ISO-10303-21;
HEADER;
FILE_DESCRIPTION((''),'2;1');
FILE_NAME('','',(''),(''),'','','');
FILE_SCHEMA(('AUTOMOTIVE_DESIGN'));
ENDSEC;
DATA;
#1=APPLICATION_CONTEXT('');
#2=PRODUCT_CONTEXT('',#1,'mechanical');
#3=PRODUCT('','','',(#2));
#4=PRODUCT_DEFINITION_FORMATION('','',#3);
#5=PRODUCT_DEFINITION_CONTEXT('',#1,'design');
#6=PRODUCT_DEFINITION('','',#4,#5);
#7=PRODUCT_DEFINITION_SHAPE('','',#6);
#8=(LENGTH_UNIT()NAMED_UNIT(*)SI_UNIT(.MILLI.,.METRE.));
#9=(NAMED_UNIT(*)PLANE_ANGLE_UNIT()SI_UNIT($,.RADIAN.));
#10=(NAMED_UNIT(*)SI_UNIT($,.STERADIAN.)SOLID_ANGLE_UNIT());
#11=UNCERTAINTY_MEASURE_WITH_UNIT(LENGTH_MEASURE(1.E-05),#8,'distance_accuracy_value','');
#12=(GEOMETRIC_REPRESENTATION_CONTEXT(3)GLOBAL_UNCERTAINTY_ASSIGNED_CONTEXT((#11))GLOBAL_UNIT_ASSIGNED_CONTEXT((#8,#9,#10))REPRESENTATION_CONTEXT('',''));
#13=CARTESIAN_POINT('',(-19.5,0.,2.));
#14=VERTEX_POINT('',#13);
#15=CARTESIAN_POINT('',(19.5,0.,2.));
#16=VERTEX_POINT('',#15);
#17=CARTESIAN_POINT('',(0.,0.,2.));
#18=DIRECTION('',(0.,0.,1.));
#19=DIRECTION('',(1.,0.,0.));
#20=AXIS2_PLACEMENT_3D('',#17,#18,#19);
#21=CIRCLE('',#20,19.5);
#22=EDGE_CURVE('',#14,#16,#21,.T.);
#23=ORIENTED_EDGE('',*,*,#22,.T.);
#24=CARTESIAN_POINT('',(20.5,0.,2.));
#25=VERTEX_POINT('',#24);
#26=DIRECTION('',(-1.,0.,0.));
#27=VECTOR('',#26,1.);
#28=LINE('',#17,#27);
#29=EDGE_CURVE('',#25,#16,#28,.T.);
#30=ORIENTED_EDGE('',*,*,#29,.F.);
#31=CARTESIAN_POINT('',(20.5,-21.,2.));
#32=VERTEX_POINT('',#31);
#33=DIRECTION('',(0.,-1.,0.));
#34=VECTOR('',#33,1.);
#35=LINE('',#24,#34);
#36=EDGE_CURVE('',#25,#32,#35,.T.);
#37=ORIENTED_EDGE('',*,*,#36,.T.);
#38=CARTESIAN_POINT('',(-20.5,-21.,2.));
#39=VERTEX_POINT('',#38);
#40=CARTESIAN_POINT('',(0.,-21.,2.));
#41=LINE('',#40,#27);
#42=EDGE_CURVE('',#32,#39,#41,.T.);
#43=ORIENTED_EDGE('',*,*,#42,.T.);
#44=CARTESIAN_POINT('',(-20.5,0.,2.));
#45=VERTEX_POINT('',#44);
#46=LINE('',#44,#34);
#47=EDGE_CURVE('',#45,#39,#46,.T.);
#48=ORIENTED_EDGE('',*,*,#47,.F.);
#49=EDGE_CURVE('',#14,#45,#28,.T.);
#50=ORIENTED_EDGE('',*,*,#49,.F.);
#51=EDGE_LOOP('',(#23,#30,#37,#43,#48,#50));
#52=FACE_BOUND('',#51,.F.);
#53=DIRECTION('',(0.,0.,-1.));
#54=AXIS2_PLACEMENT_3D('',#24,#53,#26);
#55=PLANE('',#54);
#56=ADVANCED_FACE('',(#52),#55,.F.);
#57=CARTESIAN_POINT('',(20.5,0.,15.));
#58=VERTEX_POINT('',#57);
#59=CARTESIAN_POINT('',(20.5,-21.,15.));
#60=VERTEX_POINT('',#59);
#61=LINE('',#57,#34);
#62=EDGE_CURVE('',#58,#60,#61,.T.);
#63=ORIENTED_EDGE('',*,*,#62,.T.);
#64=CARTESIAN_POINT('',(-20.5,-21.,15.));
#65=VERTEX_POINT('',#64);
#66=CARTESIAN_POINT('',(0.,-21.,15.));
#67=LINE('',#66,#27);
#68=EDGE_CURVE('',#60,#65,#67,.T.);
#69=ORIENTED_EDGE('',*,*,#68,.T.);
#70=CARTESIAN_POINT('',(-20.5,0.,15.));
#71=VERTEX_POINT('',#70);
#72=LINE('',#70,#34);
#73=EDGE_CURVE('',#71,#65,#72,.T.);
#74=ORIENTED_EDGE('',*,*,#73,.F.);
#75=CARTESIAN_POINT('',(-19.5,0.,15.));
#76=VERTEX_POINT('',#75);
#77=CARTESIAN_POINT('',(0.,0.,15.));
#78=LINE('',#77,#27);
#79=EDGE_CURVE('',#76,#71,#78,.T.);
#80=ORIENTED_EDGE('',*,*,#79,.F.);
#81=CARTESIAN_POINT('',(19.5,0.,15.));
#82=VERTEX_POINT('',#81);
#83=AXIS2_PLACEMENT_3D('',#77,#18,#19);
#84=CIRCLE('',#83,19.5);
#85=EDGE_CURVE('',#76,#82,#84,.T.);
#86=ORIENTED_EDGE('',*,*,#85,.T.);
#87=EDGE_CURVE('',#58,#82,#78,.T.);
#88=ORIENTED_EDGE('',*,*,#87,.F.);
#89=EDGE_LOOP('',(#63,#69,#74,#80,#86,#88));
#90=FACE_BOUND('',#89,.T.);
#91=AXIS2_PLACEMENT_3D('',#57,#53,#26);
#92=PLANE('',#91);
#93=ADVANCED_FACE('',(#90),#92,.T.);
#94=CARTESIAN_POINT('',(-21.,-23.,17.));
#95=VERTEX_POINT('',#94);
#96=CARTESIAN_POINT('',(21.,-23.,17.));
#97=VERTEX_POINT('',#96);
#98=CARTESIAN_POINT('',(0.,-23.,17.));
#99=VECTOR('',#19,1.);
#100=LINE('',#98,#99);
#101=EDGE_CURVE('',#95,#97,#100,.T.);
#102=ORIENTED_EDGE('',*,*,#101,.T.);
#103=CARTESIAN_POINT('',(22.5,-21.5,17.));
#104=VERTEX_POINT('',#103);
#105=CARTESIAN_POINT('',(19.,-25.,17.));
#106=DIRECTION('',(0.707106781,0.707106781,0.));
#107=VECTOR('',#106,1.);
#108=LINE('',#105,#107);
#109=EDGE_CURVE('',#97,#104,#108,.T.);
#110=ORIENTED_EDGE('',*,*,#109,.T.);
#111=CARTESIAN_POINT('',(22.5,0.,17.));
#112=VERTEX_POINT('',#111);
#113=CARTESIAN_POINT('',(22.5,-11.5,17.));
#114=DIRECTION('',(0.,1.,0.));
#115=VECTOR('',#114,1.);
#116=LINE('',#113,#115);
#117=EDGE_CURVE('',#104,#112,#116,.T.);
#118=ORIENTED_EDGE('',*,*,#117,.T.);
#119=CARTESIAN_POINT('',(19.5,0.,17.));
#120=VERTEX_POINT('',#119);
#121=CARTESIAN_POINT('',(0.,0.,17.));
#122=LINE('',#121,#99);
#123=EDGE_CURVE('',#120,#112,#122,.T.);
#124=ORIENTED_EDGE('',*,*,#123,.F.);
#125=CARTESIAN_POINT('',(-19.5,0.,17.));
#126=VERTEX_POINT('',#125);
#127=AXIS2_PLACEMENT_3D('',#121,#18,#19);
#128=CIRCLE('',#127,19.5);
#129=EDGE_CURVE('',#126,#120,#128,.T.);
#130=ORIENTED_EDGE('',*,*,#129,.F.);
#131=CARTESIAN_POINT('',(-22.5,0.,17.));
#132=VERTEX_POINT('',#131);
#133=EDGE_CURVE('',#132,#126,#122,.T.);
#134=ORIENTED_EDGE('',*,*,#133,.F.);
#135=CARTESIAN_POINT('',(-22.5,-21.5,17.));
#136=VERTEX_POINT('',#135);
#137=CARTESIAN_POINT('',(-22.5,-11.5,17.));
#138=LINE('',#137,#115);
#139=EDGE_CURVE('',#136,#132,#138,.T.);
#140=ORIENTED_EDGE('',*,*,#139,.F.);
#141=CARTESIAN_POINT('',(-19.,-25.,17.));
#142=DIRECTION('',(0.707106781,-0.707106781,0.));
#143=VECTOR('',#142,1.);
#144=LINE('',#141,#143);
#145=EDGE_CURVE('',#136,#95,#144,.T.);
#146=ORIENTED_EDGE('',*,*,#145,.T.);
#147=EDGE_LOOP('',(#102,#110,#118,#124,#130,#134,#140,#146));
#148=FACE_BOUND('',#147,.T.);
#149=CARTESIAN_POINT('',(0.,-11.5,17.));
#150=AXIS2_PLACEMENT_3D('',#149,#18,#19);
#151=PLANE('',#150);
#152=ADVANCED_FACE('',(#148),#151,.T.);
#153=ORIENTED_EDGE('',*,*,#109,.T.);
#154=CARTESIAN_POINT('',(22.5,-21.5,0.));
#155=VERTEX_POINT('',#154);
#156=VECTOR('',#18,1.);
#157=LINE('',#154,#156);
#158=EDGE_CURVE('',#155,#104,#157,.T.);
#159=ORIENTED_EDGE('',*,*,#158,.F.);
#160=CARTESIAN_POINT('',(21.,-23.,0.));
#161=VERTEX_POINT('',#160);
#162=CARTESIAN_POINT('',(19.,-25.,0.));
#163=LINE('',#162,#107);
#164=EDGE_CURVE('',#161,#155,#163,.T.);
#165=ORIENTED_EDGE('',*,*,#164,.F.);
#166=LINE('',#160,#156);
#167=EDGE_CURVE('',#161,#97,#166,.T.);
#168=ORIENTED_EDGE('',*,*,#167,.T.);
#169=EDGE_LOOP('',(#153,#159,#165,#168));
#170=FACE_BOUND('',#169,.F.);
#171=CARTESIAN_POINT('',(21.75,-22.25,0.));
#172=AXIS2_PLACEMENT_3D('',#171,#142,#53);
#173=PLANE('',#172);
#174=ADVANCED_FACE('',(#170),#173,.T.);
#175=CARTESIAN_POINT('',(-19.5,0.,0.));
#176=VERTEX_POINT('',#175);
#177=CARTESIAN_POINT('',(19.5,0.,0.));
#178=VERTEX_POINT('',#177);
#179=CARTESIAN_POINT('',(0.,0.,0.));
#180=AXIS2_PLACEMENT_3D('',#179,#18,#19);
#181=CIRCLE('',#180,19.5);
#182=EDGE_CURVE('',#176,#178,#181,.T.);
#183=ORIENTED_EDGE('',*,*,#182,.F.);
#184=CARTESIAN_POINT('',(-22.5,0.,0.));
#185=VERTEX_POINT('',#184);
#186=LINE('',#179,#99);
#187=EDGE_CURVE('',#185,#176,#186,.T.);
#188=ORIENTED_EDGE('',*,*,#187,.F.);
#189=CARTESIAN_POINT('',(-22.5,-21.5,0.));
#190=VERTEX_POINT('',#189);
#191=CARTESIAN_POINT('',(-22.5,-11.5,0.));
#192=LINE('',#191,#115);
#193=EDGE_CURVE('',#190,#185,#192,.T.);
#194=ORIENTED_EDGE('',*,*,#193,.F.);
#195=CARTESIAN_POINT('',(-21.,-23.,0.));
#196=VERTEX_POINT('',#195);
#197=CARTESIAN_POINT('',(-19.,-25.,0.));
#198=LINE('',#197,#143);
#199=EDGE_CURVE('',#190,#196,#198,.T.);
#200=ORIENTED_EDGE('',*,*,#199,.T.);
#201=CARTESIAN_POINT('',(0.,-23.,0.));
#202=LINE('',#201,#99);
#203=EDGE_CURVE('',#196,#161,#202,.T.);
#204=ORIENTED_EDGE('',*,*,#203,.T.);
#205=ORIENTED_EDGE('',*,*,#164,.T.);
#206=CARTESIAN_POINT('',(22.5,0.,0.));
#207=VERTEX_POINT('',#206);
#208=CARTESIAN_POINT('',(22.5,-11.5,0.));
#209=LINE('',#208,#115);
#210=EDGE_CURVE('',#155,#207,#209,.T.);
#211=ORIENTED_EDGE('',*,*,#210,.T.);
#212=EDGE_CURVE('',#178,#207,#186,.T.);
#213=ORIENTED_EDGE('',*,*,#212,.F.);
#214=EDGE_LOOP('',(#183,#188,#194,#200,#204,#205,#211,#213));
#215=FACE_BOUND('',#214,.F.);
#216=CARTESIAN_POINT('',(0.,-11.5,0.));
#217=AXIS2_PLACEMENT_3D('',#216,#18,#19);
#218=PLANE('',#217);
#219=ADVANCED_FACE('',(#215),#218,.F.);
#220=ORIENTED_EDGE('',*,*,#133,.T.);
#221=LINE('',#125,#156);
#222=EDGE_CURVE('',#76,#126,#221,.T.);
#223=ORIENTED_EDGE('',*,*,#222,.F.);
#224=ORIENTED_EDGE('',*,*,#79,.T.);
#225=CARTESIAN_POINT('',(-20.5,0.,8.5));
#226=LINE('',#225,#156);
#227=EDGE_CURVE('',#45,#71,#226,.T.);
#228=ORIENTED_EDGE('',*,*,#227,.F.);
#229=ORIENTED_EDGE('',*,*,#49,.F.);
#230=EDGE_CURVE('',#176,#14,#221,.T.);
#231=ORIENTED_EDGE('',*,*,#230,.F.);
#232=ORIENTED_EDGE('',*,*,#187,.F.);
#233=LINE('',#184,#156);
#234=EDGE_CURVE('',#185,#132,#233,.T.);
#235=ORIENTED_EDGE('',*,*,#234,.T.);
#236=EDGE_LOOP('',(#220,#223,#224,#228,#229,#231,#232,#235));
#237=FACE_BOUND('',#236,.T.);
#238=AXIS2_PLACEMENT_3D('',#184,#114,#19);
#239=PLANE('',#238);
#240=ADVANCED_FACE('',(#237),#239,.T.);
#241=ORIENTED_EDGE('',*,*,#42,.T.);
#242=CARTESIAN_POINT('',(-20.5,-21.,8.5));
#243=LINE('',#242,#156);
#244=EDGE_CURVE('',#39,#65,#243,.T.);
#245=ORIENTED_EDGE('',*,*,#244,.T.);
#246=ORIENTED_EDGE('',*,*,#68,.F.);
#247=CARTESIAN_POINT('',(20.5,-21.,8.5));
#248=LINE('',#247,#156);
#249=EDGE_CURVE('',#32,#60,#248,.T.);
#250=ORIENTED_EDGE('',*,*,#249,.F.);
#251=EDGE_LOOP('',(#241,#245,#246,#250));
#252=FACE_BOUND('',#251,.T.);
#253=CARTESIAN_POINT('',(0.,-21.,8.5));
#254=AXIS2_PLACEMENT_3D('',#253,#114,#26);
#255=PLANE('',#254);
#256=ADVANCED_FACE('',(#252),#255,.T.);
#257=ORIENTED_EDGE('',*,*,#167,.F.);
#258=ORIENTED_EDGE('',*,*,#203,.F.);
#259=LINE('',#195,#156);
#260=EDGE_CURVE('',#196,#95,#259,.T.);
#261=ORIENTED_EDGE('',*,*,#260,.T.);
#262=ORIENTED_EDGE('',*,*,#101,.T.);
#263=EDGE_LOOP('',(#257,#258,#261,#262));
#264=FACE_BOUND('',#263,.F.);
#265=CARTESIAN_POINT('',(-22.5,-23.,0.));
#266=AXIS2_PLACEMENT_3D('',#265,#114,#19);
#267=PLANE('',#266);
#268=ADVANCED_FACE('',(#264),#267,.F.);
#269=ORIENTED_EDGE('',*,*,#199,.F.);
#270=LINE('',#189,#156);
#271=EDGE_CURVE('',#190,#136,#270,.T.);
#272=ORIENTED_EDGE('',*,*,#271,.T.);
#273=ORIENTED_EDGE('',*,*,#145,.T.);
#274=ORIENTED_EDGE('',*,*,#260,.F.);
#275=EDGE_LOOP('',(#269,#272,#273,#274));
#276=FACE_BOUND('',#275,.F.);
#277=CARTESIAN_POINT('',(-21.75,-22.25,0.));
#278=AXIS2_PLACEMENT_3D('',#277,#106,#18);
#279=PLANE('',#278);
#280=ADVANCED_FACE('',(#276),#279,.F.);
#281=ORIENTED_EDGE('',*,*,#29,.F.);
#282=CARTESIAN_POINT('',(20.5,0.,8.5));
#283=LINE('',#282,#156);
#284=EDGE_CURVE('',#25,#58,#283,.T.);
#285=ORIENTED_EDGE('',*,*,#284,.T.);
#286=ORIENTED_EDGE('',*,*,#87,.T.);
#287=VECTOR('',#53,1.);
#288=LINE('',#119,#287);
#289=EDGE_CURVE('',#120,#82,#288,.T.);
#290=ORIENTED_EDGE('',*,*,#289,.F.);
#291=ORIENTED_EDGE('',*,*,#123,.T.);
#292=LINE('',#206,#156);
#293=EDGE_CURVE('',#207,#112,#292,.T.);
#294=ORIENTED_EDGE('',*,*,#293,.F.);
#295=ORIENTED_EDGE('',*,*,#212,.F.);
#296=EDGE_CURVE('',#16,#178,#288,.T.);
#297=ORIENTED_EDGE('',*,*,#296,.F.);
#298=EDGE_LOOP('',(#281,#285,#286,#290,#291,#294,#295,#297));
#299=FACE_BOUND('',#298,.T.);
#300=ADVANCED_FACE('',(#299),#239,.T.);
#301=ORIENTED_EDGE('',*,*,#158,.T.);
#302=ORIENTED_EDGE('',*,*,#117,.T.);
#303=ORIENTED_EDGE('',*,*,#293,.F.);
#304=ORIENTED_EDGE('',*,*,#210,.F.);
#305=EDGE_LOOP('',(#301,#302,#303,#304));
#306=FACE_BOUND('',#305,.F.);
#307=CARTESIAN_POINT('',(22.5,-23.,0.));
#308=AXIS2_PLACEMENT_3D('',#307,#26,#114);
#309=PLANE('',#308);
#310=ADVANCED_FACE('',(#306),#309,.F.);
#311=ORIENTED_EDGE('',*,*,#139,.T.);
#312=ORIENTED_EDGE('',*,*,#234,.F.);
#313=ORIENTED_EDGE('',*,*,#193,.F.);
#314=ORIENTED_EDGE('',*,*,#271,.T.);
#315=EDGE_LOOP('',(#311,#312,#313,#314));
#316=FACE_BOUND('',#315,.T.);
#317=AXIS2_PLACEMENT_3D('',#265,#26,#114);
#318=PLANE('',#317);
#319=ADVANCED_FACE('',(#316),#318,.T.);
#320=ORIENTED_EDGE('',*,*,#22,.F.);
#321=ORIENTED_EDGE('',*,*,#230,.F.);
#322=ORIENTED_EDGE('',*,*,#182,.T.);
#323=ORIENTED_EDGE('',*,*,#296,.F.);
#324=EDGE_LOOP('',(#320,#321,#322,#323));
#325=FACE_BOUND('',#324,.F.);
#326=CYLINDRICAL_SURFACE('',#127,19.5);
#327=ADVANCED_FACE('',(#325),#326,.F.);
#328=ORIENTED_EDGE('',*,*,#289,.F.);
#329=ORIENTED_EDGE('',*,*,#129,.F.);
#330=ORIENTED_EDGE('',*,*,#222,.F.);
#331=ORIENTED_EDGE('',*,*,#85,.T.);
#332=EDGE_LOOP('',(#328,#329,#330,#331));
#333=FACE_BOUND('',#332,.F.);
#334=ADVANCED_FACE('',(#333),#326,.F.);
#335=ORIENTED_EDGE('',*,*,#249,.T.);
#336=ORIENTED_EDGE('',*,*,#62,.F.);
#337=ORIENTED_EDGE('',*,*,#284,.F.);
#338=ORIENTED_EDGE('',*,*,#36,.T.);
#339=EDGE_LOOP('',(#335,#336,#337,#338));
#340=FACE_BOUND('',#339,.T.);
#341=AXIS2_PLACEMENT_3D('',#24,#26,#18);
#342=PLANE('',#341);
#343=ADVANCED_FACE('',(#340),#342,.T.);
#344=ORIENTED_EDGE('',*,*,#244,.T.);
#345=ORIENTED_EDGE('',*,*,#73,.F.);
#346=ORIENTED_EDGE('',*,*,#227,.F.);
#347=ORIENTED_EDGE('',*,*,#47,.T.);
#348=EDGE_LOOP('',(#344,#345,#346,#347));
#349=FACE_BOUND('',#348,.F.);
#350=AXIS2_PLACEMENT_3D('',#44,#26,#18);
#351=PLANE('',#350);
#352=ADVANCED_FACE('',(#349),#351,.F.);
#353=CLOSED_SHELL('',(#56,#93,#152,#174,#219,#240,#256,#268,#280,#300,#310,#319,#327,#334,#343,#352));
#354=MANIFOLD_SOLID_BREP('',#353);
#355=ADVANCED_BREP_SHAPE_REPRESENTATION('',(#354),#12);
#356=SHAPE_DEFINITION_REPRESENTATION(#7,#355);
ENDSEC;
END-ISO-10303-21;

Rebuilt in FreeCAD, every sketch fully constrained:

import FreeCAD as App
import Part
import Sketcher


def edges_at(feature, points):
    """Names of the edges that pass closest to the given points."""
    edges = feature.Shape.Edges
    near = lambda p: min(range(len(edges)), key=lambda i: edges[i].distToShape(Part.Vertex(*p))[0])
    return sorted({f"Edge{near(p) + 1}" for p in points})


def add_polygon(sketch, points):
    """Adds a closed chain of lines whose ends are joined by coincident constraints."""
    first, n = sketch.GeometryCount, len(points)
    for a, b in zip(points, points[1:] + points[:1]):
        sketch.addGeometry(Part.LineSegment(App.Vector(*a, 0), App.Vector(*b, 0)), False)
    for i in range(n):
        sketch.addConstraint(Sketcher.Constraint("Coincident", first + i, 2, first + (i + 1) % n, 1))

doc = App.newDocument("Part")
body = doc.addObject("PartDesign::Body", "Body")

# Sketch on XY plane
sketch1 = body.newObject("Sketcher::SketchObject", "Sketch")
sketch1.AttachmentSupport = (doc.getObject("XY_Plane"), [""])
sketch1.MapMode = "FlatFace"
add_polygon(sketch1, [(-22, 0), (-22, -23), (22, -23), (22, 0)])  # lines 0-3
sketch1.addConstraint([
    Sketcher.Constraint("Vertical", 0),
    Sketcher.Constraint("Horizontal", 1),
    Sketcher.Constraint("Vertical", 2),
    Sketcher.Constraint("Horizontal", 3),
    Sketcher.Constraint("Symmetric", 2, 2, 3, 2, -1, 1),
    Sketcher.Constraint("DistanceX", 1, 1, 1, 2, 45.0),
    Sketcher.Constraint("DistanceY", 0, 2, 0, 1, 23.0),
])
pad1 = body.newObject("PartDesign::Pad", "Pad")
pad1.Profile = sketch1
pad1.Length = 17

# Sketch on XZ plane
sketch2 = body.newObject("Sketcher::SketchObject", "Sketch001")
sketch2.AttachmentSupport = (doc.getObject("XZ_Plane"), [""])
sketch2.MapMode = "FlatFace"
add_polygon(sketch2, [(20, 15), (20, 2), (-20, 2), (-20, 15)])  # lines 0-3
sketch2.addConstraint([
    Sketcher.Constraint("Vertical", 0),
    Sketcher.Constraint("Horizontal", 1),
    Sketcher.Constraint("Vertical", 2),
    Sketcher.Constraint("Horizontal", 3),
    Sketcher.Constraint("DistanceX", 1, 2, 1, 1, 41.0),
    Sketcher.Constraint("DistanceY", 0, 2, 0, 1, 13.0),
    Sketcher.Constraint("DistanceY", -1, 1, 0, 2, 2.0),
    Sketcher.Constraint("DistanceX", -1, 1, 0, 2, 20.5),
])
pocket1 = body.newObject("PartDesign::Pocket", "Pocket")
pocket1.Profile = sketch2
pocket1.Length = 21
pocket1.Reversed = True

# Sketch on XY plane
sketch3 = body.newObject("Sketcher::SketchObject", "Sketch002")
sketch3.AttachmentSupport = (doc.getObject("XY_Plane"), [""])
sketch3.MapMode = "FlatFace"
sketch3.AttachmentOffset = App.Placement(App.Vector(0, 0, 17), App.Rotation())
sketch3.addGeometry(Part.Circle(App.Vector(0, 0, 0), App.Vector(0, 0, 1), 20), False)
sketch3.addConstraint([
    Sketcher.Constraint("Coincident", 0, 3, -1, 1),
    Sketcher.Constraint("Diameter", 0, 39.0),
])
pocket2 = body.newObject("PartDesign::Pocket", "Pocket001")
pocket2.Profile = sketch3
pocket2.Type = "ThroughAll"
doc.recompute()

chamfer = body.newObject("PartDesign::Chamfer", "Chamfer")
chamfer.Base = (pocket2, edges_at(pocket2, [(-22.5, -23, 8.5), (22.5, -23, 8.5)]))
chamfer.Size = 1.5

doc.recompute()
